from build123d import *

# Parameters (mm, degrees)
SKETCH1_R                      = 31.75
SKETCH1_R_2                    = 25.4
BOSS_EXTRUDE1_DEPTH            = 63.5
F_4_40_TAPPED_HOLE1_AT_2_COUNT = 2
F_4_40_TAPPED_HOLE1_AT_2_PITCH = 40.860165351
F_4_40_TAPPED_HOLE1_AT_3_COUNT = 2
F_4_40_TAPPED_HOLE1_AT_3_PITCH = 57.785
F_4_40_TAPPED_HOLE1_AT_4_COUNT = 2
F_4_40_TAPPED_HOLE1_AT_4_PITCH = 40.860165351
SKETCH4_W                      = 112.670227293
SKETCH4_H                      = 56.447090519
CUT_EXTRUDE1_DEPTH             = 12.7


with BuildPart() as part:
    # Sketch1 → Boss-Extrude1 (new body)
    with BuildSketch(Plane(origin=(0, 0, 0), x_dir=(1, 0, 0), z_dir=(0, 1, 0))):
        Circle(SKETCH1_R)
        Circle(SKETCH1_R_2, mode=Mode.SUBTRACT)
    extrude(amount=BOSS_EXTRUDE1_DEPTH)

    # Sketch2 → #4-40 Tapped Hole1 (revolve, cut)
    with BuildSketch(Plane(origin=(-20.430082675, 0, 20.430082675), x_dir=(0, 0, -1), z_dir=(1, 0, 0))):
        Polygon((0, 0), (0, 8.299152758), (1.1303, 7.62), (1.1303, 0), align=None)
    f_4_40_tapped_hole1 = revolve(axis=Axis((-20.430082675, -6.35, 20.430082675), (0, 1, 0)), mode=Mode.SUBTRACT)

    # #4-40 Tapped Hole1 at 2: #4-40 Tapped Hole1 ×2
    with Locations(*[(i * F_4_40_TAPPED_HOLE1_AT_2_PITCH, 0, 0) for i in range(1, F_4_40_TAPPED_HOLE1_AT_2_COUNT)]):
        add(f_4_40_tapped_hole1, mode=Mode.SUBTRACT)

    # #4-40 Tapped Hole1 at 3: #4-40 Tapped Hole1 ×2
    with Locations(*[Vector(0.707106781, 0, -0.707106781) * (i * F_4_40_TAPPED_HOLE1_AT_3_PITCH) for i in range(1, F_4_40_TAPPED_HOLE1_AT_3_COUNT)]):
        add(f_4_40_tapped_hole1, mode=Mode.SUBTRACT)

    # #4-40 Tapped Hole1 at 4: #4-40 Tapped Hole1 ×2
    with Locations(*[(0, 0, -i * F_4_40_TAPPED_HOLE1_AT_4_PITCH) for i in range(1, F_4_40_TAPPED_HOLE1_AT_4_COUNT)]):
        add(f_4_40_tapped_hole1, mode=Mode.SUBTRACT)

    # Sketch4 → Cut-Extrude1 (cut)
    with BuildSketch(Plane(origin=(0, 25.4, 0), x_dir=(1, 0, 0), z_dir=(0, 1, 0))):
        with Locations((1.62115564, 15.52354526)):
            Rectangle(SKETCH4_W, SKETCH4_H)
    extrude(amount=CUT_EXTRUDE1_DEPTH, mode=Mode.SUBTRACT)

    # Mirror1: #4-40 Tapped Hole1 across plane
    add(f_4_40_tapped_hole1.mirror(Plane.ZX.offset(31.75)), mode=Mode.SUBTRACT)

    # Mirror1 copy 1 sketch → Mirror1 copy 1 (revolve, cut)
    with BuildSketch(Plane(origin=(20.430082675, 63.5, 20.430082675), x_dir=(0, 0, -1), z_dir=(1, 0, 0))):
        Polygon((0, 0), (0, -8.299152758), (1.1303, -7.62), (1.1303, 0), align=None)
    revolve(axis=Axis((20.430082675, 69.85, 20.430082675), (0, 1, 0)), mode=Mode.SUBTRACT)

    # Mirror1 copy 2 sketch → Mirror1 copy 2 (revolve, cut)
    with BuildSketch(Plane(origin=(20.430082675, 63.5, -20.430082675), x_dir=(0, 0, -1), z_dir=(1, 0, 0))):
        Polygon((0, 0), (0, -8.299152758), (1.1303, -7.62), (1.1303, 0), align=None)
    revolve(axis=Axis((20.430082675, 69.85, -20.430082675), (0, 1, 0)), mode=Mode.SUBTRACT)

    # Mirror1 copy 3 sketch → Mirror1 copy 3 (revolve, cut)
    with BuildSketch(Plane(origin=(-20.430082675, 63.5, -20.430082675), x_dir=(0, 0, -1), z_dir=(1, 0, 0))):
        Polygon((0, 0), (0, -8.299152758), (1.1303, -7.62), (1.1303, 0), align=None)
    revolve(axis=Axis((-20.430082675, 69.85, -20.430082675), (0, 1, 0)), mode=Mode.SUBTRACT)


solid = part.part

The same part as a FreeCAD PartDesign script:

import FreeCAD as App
import Part
import Sketcher
from FreeCAD import Vector
Q = App.Units.Quantity


def add_polygon(sketch, points):
    """Adds a closed chain of lines whose ends are joined by coincident constraints."""
    first, n = sketch.GeometryCount, len(points)
    for a, b in zip(points, points[1:] + points[:1]):
        sketch.addGeometry(Part.LineSegment(App.Vector(*a, 0), App.Vector(*b, 0)), False)
    for i in range(n):
        sketch.addConstraint(Sketcher.Constraint("Coincident", first + i, 2, first + (i + 1) % n, 1))

doc = App.newDocument("Part")
body = doc.addObject("PartDesign::Body", "Body")

sketch1 = doc.addObject("Sketcher::SketchObject", "Sketch")
body.addObject(sketch1)
sketch1.AttachmentSupport = (doc.XZ_Plane, [""])
sketch1.MapMode = "FlatFace"
sketch1.addGeometry(Part.Circle(Vector(0, 0, 0), Vector(0, 0, 1), 32), False)
sketch1.addGeometry(Part.Circle(Vector(0, 0, 0), Vector(0, 0, 1), 25), False)
sketch1.addConstraint(Sketcher.Constraint("Coincident", 0, 3, -1, 1))
sketch1.addConstraint(Sketcher.Constraint("Coincident", 1, 3, -1, 1))
sketch1.addConstraint(Sketcher.Constraint("Diameter", 1, Q("2 in")))
sketch1.addConstraint(Sketcher.Constraint("Diameter", 0, Q("2.5 in")))
pad1 = doc.addObject("PartDesign::Pad", "Pad")
body.addObject(pad1)
pad1.Profile = sketch1
pad1.Length = Q("2.5 in")
pad1.Reversed = True

sketch2 = doc.addObject("Sketcher::SketchObject", "Sketch001")
body.addObject(sketch2)
sketch2.AttachmentSupport = (doc.YZ_Plane, [""])
sketch2.MapMode = "FlatFace"
sketch2.AttachmentOffset = App.Placement(Vector(0, 0, -20.430083), App.Rotation())
add_polygon(sketch2, [(8.3, 20.4), (0, 20.4), (0, 19.3), (7.6, 19.3)])
sketch2.addGeometry(Part.LineSegment(Vector(0, 20.4, 0), Vector(8.3, 20.4, 0)), True)
sketch2.addConstraint(Sketcher.Constraint("Horizontal", 0))
sketch2.addConstraint(Sketcher.Constraint("Vertical", 1))
sketch2.addConstraint(Sketcher.Constraint("Horizontal", 2))
sketch2.addConstraint(Sketcher.Constraint("Horizontal", 4))
sketch2.addConstraint(Sketcher.Constraint("Coincident", 4, 1, 0, 2))
sketch2.addConstraint(Sketcher.Constraint("PointOnObject", 0, 2, -2))
sketch2.addConstraint(Sketcher.Constraint("Equal", 0, 4))
sketch2.addConstraint(Sketcher.Constraint("DistanceX", 2, 1, 2, 2, Q("0.3 in")))
sketch2.addConstraint(Sketcher.Constraint("Angle", 3, Q("59 deg")))
sketch2.addConstraint(Sketcher.Constraint("DistanceY", 1, 2, 1, 1, Q("0.0445 in")))
sketch2.addConstraint(Sketcher.Constraint("DistanceY", -1, 1, 0, 2, Q("20.430083 mm")))
groove = doc.addObject("PartDesign::Groove", "Groove")
body.addObject(groove)
groove.Profile = sketch2
groove.ReferenceAxis = (sketch2, ["Axis0"])
groove.Angle = 360
doc.recompute()

linearpattern = doc.addObject("PartDesign::LinearPattern", "LinearPattern")
body.addObject(linearpattern)
linearpattern.Originals = [groove]
linearpattern.Direction = (doc.X_Axis, [""])
linearpattern.Mode = "offset"
linearpattern.Offset = 40.860165
linearpattern.Occurrences = 2
body.Tip = linearpattern
doc.recompute()

datumline = doc.addObject("PartDesign::Line", "DatumLine")
body.addObject(datumline)
datumline.Placement = App.Placement(Vector(0, 0, 0), App.Rotation(Vector(0, 0, 1), Vector(0.707106781, 0, -0.707106781)))
linearpattern2 = doc.addObject("PartDesign::LinearPattern", "LinearPattern001")
body.addObject(linearpattern2)
linearpattern2.Originals = [groove]
linearpattern2.Direction = (datumline, [""])
linearpattern2.Mode = "offset"
linearpattern2.Offset = Q("2.275 in")
linearpattern2.Occurrences = 2
body.Tip = linearpattern2
doc.recompute()

linearpattern3 = doc.addObject("PartDesign::LinearPattern", "LinearPattern002")
body.addObject(linearpattern3)
linearpattern3.Originals = [groove]
linearpattern3.Direction = (doc.Z_Axis, [""])
linearpattern3.Mode = "offset"
linearpattern3.Offset = 40.860165
linearpattern3.Occurrences = 2
linearpattern3.Reversed = True
body.Tip = linearpattern3

sketch3 = doc.addObject("Sketcher::SketchObject", "Sketch002")
body.addObject(sketch3)
sketch3.AttachmentSupport = (doc.XZ_Plane, [""])
sketch3.MapMode = "FlatFace"
sketch3.AttachmentOffset = App.Placement(Vector(0, 0, -1 * 25.4), App.Rotation())
add_polygon(sketch3, [(-55, -44), (-55, 13), (58, 13), (58, -44)])
sketch3.addConstraint(Sketcher.Constraint("Vertical", 0))
sketch3.addConstraint(Sketcher.Constraint("Horizontal", 1))
sketch3.addConstraint(Sketcher.Constraint("Vertical", 2))
sketch3.addConstraint(Sketcher.Constraint("Horizontal", 3))
sketch3.addConstraint(Sketcher.Constraint("DistanceY", -1, 1, 0, 2, Q("0.5 in")))
sketch3.addConstraint(Sketcher.Constraint("DistanceY", 0, 1, 0, 2, Q("56.447091 mm")))
sketch3.addConstraint(Sketcher.Constraint("DistanceX", 1, 1, 1, 2, Q("112.670227 mm")))
sketch3.addConstraint(Sketcher.Constraint("DistanceX", 0, 2, -1, 1, Q("54.713958 mm")))
pocket1 = doc.addObject("PartDesign::Pocket", "Pocket")
body.addObject(pocket1)
pocket1.Profile = sketch3
pocket1.Length = Q("0.5 in")
doc.recompute()

datumplane = doc.addObject("PartDesign::Plane", "DatumPlane")
body.addObject(datumplane)
datumplane.AttachmentSupport = (doc.XZ_Plane, [""])
datumplane.MapMode = "FlatFace"
datumplane.AttachmentOffset = App.Placement(Vector(0, 0, -1.25 * 25.4), App.Rotation())
mirrored = doc.addObject("PartDesign::Mirrored", "Mirrored")
body.addObject(mirrored)
mirrored.Originals = [groove]
mirrored.MirrorPlane = (datumplane, [""])
body.Tip = mirrored

sketch4 = doc.addObject("Sketcher::SketchObject", "Sketch003")
body.addObject(sketch4)
sketch4.AttachmentSupport = (doc.YZ_Plane, [""])
sketch4.MapMode = "FlatFace"
sketch4.AttachmentOffset = App.Placement(Vector(0, 0, 20.430083), App.Rotation())
add_polygon(sketch4, [(63.5, 20.4), (55.2, 20.4), (55.9, 19.3), (63.5, 19.3)])
sketch4.addGeometry(Part.LineSegment(Vector(55.2, 20.4, 0), Vector(63.5, 20.4, 0)), True)
sketch4.addConstraint(Sketcher.Constraint("Horizontal", 0))
sketch4.addConstraint(Sketcher.Constraint("Horizontal", 2))
sketch4.addConstraint(Sketcher.Constraint("Vertical", 3))
sketch4.addConstraint(Sketcher.Constraint("Horizontal", 4))
sketch4.addConstraint(Sketcher.Constraint("Coincident", 4, 1, 0, 2))
sketch4.addConstraint(Sketcher.Constraint("Vertical", 2, 2, 4, 2))
sketch4.addConstraint(Sketcher.Constraint("DistanceX", 2, 1, 2, 2, Q("0.3 in")))
sketch4.addConstraint(Sketcher.Constraint("Angle", 1, Q("-59 deg")))
sketch4.addConstraint(Sketcher.Constraint("DistanceX", -1, 1, 1, 2, Q("2.2 in")))
sketch4.addConstraint(Sketcher.Constraint("DistanceY", 3, 1, 3, 2, Q("0.0445 in")))
sketch4.addConstraint(Sketcher.Constraint("DistanceY", -1, 1, 0, 2, Q("20.430083 mm")))
groove2 = doc.addObject("PartDesign::Groove", "Groove001")
body.addObject(groove2)
groove2.Profile = sketch4
groove2.ReferenceAxis = (sketch4, ["Axis0"])
groove2.Angle = 360

sketch5 = doc.addObject("Sketcher::SketchObject", "Sketch004")
body.addObject(sketch5)
sketch5.AttachmentSupport = (doc.YZ_Plane, [""])
sketch5.MapMode = "FlatFace"
sketch5.AttachmentOffset = App.Placement(Vector(0, 0, 20.430083), App.Rotation())
add_polygon(sketch5, [(63.5, -20.4), (55.2, -20.4), (55.9, -21.6), (63.5, -21.6)])
sketch5.addGeometry(Part.LineSegment(Vector(55.2, -20.4, 0), Vector(63.5, -20.4, 0)), True)
sketch5.addConstraint(Sketcher.Constraint("Horizontal", 0))
sketch5.addConstraint(Sketcher.Constraint("Horizontal", 2))
sketch5.addConstraint(Sketcher.Constraint("Vertical", 3))
sketch5.addConstraint(Sketcher.Constraint("Horizontal", 4))
sketch5.addConstraint(Sketcher.Constraint("Coincident", 4, 1, 0, 2))
sketch5.addConstraint(Sketcher.Constraint("Vertical", 2, 2, 4, 2))
sketch5.addConstraint(Sketcher.Constraint("DistanceX", 2, 1, 2, 2, Q("0.3 in")))
sketch5.addConstraint(Sketcher.Constraint("Angle", 1, Q("-59 deg")))
sketch5.addConstraint(Sketcher.Constraint("DistanceX", -1, 1, 1, 2, Q("2.2 in")))
sketch5.addConstraint(Sketcher.Constraint("DistanceY", 3, 1, 3, 2, Q("0.0445 in")))
sketch5.addConstraint(Sketcher.Constraint("DistanceY", 0, 2, -1, 1, Q("20.430083 mm")))
groove3 = doc.addObject("PartDesign::Groove", "Groove002")
body.addObject(groove3)
groove3.Profile = sketch5
groove3.ReferenceAxis = (sketch5, ["Axis0"])
groove3.Angle = 360

sketch6 = doc.addObject("Sketcher::SketchObject", "Sketch005")
body.addObject(sketch6)
sketch6.AttachmentSupport = (doc.YZ_Plane, [""])
sketch6.MapMode = "FlatFace"
sketch6.AttachmentOffset = App.Placement(Vector(0, 0, -20.430083), App.Rotation())
add_polygon(sketch6, [(63.5, -20.4), (55.2, -20.4), (55.9, -21.6), (63.5, -21.6)])
sketch6.addGeometry(Part.LineSegment(Vector(55.2, -20.4, 0), Vector(63.5, -20.4, 0)), True)
sketch6.addConstraint(Sketcher.Constraint("Horizontal", 0))
sketch6.addConstraint(Sketcher.Constraint("Horizontal", 2))
sketch6.addConstraint(Sketcher.Constraint("Vertical", 3))
sketch6.addConstraint(Sketcher.Constraint("Horizontal", 4))
sketch6.addConstraint(Sketcher.Constraint("Coincident", 4, 1, 0, 2))
sketch6.addConstraint(Sketcher.Constraint("Vertical", 2, 2, 4, 2))
sketch6.addConstraint(Sketcher.Constraint("DistanceX", 2, 1, 2, 2, Q("0.3 in")))
sketch6.addConstraint(Sketcher.Constraint("Angle", 1, Q("-59 deg")))
sketch6.addConstraint(Sketcher.Constraint("DistanceX", -1, 1, 1, 2, Q("2.2 in")))
sketch6.addConstraint(Sketcher.Constraint("DistanceY", 3, 1, 3, 2, Q("0.0445 in")))
sketch6.addConstraint(Sketcher.Constraint("DistanceY", 0, 2, -1, 1, Q("20.430083 mm")))
groove4 = doc.addObject("PartDesign::Groove", "Groove003")
body.addObject(groove4)
groove4.Profile = sketch6
groove4.ReferenceAxis = (sketch6, ["Axis0"])
groove4.Angle = 360

doc.recompute()
